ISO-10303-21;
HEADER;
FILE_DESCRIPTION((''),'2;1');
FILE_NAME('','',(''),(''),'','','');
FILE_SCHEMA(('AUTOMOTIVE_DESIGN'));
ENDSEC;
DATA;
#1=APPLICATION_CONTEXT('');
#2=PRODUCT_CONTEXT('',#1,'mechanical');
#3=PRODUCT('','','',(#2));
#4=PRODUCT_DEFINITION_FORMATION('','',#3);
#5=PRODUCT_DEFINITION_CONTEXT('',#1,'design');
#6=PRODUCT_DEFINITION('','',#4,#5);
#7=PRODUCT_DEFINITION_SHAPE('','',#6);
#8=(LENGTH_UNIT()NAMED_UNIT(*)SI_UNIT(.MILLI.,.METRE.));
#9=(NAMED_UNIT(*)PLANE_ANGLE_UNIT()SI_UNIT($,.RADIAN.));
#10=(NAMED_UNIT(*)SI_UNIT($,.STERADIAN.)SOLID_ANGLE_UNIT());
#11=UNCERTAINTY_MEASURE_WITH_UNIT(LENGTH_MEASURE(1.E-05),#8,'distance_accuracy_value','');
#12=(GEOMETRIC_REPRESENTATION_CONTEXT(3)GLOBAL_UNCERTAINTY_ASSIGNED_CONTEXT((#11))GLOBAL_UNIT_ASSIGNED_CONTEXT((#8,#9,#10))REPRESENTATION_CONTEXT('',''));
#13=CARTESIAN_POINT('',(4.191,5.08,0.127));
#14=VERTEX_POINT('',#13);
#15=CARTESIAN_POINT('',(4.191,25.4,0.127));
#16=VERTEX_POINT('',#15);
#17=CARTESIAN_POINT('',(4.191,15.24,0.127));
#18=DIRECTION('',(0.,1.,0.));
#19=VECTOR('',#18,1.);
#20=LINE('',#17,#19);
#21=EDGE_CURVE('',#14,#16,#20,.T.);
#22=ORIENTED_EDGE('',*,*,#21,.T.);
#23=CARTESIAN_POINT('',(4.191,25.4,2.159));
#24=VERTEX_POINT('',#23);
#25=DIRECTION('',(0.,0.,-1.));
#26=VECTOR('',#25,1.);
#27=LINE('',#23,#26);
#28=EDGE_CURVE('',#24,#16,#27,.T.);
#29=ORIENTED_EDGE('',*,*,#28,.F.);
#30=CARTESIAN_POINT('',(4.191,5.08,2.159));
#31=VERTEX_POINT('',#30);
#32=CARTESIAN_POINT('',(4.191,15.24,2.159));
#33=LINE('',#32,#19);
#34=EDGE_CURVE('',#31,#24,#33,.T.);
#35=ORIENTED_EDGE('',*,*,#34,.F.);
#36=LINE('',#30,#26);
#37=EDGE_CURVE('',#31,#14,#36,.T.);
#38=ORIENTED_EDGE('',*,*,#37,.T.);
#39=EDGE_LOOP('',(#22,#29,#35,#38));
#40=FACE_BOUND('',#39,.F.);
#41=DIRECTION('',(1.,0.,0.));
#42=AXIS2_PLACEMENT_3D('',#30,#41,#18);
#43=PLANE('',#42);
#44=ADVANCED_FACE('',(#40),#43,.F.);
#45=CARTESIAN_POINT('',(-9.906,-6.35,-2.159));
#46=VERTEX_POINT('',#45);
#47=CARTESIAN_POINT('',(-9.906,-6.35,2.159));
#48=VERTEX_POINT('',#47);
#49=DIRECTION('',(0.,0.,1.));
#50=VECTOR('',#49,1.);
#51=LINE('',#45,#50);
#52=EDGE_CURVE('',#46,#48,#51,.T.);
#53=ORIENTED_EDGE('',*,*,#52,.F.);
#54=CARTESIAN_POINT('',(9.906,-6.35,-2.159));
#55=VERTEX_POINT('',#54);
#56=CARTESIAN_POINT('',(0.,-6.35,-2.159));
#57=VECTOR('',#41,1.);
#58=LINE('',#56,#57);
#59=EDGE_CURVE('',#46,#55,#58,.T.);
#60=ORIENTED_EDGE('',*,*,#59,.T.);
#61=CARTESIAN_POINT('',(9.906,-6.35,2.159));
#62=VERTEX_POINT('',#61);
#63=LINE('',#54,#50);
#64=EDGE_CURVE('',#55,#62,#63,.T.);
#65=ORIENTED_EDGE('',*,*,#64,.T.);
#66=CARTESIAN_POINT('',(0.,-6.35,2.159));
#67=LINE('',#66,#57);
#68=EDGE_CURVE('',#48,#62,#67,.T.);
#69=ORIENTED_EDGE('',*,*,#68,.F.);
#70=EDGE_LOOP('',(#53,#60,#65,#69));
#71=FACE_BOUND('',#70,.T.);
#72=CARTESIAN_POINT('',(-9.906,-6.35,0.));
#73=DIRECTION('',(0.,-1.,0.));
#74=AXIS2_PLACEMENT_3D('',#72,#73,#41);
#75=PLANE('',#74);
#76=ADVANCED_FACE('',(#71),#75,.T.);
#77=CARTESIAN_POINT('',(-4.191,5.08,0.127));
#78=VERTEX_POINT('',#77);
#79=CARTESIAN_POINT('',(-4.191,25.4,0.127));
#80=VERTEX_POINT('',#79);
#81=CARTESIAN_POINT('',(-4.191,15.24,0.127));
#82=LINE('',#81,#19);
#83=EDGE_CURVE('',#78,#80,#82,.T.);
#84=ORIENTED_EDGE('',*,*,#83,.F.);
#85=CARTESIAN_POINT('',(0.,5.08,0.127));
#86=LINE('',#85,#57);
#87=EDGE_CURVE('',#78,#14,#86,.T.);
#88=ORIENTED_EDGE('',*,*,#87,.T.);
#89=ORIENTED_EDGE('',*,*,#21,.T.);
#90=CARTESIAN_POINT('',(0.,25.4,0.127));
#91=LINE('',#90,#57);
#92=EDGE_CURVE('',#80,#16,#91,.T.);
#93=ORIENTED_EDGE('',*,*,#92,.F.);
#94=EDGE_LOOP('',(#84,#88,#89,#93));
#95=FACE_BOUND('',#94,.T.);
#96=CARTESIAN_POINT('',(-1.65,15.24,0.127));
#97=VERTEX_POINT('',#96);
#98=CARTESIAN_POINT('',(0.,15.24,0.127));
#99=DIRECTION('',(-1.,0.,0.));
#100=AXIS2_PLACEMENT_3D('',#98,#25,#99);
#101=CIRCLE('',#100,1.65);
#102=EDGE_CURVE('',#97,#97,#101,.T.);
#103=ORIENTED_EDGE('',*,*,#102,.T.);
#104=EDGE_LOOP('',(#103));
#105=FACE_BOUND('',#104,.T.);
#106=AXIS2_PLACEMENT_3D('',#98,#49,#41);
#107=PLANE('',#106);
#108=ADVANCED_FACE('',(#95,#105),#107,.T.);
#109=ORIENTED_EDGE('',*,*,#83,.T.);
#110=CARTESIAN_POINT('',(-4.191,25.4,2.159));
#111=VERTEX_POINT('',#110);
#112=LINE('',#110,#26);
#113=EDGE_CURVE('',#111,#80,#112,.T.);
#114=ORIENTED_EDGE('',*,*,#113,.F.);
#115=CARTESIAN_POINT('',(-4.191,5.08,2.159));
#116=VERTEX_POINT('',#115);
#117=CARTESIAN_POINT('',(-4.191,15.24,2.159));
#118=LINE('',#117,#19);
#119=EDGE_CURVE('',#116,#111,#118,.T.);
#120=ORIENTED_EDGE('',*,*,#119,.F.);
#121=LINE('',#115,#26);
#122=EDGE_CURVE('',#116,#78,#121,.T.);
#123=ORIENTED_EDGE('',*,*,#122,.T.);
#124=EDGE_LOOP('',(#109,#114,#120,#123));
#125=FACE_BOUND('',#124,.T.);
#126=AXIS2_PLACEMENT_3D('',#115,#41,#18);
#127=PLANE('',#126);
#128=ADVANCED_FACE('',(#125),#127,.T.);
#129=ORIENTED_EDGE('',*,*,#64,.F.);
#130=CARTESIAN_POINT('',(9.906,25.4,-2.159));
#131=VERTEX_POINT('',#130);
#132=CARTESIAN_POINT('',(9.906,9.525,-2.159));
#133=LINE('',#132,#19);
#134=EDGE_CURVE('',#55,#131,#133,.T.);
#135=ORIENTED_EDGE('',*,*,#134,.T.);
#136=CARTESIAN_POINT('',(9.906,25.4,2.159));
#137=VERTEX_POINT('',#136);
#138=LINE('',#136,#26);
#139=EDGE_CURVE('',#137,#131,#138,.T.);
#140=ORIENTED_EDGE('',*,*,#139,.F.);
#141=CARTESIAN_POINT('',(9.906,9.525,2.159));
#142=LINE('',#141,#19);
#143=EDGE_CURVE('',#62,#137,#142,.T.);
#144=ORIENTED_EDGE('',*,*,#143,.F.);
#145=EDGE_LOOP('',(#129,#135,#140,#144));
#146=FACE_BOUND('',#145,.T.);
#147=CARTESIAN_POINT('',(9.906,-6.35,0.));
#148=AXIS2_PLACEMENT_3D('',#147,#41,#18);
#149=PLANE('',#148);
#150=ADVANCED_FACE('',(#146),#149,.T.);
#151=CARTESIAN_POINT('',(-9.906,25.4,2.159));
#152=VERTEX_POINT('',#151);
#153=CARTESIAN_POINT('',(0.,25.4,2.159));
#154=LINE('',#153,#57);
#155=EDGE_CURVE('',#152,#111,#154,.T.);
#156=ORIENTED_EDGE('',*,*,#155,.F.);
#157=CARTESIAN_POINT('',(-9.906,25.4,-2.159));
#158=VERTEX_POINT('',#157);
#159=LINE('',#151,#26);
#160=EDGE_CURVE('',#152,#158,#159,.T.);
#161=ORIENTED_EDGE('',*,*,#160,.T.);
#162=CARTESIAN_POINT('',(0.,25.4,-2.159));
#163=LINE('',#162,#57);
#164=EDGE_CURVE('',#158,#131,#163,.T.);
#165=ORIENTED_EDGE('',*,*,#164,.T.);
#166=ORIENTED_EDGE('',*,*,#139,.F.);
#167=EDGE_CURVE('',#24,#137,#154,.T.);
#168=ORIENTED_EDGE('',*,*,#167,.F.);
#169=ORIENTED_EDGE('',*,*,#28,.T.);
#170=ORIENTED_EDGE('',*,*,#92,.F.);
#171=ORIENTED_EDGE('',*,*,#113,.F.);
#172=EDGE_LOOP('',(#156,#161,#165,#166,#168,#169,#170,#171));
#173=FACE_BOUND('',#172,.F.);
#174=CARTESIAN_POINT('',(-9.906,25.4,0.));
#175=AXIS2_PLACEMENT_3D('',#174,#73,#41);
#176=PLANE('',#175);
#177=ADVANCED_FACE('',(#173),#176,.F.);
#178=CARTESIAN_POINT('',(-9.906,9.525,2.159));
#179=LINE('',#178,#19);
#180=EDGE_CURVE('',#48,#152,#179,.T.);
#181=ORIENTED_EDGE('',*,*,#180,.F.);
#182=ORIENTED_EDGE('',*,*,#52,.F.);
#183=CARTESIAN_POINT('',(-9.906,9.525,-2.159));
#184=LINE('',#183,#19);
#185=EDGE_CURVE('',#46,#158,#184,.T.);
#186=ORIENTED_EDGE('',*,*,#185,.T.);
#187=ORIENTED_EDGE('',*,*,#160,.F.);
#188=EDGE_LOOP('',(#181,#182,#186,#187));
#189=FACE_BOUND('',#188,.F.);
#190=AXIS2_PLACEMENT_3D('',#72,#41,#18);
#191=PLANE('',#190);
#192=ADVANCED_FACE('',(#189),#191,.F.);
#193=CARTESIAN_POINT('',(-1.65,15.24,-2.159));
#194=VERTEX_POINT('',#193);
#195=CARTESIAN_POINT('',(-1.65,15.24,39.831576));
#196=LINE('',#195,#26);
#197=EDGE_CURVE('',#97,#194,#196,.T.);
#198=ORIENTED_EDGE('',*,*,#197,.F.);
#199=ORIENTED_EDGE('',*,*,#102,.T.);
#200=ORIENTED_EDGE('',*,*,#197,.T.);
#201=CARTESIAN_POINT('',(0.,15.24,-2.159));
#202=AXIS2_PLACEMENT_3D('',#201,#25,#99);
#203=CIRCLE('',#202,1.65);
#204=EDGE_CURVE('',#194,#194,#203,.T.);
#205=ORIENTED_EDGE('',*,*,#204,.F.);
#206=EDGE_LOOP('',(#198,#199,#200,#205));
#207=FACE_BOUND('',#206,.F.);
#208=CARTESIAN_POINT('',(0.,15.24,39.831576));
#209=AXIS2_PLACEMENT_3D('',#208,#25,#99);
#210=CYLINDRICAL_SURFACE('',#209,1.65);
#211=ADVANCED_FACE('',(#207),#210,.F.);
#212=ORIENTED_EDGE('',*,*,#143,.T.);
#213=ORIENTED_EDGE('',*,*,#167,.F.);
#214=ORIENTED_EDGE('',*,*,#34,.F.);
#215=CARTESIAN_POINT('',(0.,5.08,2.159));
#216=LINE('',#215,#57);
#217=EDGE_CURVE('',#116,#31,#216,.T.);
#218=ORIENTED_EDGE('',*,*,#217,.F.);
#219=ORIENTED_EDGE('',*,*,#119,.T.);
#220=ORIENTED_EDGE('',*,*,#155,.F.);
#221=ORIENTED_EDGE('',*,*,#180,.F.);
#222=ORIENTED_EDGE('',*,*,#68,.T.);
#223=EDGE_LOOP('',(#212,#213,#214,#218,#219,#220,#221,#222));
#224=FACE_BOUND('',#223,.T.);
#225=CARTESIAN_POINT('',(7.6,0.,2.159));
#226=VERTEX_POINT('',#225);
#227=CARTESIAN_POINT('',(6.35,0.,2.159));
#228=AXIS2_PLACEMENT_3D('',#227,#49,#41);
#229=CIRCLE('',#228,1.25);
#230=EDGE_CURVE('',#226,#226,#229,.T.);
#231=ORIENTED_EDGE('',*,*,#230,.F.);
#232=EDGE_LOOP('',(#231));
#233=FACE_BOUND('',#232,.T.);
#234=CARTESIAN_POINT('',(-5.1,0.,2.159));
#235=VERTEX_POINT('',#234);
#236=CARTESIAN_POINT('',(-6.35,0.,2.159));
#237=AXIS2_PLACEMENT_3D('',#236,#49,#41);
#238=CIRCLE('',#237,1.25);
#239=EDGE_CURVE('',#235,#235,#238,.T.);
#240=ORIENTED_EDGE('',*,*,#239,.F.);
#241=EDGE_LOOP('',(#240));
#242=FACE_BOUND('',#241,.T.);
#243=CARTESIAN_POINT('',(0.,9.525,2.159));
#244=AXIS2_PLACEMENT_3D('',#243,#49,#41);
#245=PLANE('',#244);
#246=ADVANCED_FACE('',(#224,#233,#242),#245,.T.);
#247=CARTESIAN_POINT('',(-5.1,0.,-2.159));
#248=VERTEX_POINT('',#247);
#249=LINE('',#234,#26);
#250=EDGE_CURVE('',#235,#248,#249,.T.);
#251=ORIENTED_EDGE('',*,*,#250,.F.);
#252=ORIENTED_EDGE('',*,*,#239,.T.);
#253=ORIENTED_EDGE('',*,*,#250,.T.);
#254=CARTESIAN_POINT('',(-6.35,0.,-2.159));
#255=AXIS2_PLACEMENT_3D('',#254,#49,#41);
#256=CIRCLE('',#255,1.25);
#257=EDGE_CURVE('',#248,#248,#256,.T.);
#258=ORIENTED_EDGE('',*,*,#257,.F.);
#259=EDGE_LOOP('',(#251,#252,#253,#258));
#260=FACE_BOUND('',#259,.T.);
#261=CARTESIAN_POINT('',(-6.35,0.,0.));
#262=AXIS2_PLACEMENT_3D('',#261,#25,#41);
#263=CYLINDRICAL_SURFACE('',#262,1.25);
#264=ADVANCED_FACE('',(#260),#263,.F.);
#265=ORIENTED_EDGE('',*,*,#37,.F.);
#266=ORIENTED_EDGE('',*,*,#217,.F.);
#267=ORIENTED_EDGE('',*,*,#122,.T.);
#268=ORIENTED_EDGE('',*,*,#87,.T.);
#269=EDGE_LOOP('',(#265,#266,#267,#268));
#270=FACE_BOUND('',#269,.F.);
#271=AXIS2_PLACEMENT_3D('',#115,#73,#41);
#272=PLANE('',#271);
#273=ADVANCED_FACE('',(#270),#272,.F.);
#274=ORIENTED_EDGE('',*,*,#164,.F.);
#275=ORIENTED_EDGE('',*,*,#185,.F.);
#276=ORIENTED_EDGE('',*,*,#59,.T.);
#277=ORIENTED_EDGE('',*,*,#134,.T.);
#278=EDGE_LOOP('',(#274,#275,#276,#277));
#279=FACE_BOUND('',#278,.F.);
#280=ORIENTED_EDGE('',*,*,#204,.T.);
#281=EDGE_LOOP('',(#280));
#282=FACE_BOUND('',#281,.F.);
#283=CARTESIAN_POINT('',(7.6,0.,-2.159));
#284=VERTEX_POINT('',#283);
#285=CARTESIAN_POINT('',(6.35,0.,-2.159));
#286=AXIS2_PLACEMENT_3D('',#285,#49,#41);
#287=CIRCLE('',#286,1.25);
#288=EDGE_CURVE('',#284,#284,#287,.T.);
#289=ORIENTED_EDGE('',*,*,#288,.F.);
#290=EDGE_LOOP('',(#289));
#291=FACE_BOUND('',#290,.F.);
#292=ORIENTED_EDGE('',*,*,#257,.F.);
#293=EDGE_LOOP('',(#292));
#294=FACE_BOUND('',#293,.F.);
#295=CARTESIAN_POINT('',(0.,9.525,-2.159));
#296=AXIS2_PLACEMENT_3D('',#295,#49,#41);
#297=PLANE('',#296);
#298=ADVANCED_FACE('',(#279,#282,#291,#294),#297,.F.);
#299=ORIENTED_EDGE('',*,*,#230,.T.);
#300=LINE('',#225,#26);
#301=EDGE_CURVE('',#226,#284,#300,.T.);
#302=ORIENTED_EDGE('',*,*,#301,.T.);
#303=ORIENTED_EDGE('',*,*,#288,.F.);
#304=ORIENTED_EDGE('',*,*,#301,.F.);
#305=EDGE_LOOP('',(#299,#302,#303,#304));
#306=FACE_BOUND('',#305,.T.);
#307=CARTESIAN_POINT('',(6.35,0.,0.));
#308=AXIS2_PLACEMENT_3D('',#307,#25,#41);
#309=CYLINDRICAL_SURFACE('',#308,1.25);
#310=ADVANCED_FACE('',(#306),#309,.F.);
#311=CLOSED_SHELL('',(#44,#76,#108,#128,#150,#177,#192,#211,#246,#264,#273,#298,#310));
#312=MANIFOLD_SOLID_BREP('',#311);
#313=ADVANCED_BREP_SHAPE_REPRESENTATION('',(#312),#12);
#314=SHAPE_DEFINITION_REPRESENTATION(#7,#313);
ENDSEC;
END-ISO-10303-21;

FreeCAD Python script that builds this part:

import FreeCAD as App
import Part
import Sketcher

V = App.Vector
Q = App.Units.Quantity

doc = App.newDocument("Part")
params = doc.addObject("Spreadsheet::Sheet", "Params")
for row, (alias, value) in enumerate([
    ("sketch1_width", "0.78 in"),
    ("sketch1_height", "1.25 in"),
    ("pad1_length", "0.17 in"),
    ("hole_diameter", "3.3 mm"),
    ("sketch3_height", "0.8 in"),
    ("sketch3_width", "0.33 in"),
    ("pocket1_length", "0.08 in"),
], start=1):
    params.set(f"A{row}", alias)
    params.set(f"B{row}", "=" + value)
    params.setAlias(f"B{row}", alias)

body = doc.addObject("PartDesign::Body", "Body")

# Sketch on XY plane
sketch1 = body.newObject("Sketcher::SketchObject", "Sketch")
sketch1.AttachmentSupport = (doc.getObject("XY_Plane"), [""])
sketch1.MapMode = "FlatFace"
sketch1.addGeometry([
    Part.LineSegment(V(-9.9, 25.4, 0), V(-9.9, -6.3, 0)),  # 0
    Part.LineSegment(V(-9.9, -6.3, 0), V(9.9, -6.3, 0)),  # 1
    Part.LineSegment(V(9.9, -6.3, 0), V(9.9, 25.4, 0)),  # 2
    Part.LineSegment(V(9.9, 25.4, 0), V(-9.9, 25.4, 0)),  # 3
    Part.Circle(V(-6.3, 0, 0), V(0, 0, 1), 1.2),  # 4
    Part.Circle(V(6.3, 0, 0), V(0, 0, 1), 1.2),  # 5
], False)
sketch1.addConstraint([
    Sketcher.Constraint("Coincident", 0, 2, 1, 1),
    Sketcher.Constraint("Coincident", 1, 2, 2, 1),
    Sketcher.Constraint("Coincident", 2, 2, 3, 1),
    Sketcher.Constraint("Coincident", 3, 2, 0, 1),
    Sketcher.Constraint("Vertical", 0),
    Sketcher.Constraint("Horizontal", 1),
    Sketcher.Constraint("Vertical", 2),
    Sketcher.Constraint("Horizontal", 3),
    Sketcher.Constraint("Equal", 4, 5),
    Sketcher.Constraint("Symmetric", 4, 3, 5, 3, -1, 1),
    Sketcher.Constraint("PointOnObject", 4, 3, -1),
    Sketcher.Constraint("DistanceY", -1, 1, 2, 2, Q("1 in")),
    Sketcher.Constraint("DistanceX", 1, 1, 1, 2, Q("0.78 in")),
    Sketcher.Constraint("DistanceY", 0, 2, 0, 1, Q("1.25 in")),
    Sketcher.Constraint("DistanceX", 4, 3, 5, 3, Q("0.5 in")),
    Sketcher.Constraint("Diameter", 4, 2.5),
    Sketcher.Constraint("DistanceX", 0, 2, -1, 1, Q("0.39 in")),
])
sketch1.setExpression("Constraints[12]", "Params.sketch1_width")
sketch1.setExpression("Constraints[13]", "Params.sketch1_height")
pad1 = body.newObject("PartDesign::Pad", "Pad")
pad1.Profile = sketch1
pad1.setExpression("Length", "Params.pad1_length")
pad1.Midplane = True

# Sketch on XY plane
sketch2 = body.newObject("Sketcher::SketchObject", "Sketch001")
sketch2.AttachmentSupport = (doc.getObject("XY_Plane"), [""])
sketch2.MapMode = "FlatFace"
sketch2.AttachmentOffset = App.Placement(V(0, 0, 0.085 * 25.4), App.Rotation())
sketch2.addGeometry(Part.Circle(V(0, 15.2, 0), V(0, 0, 1), 1.6), False)
sketch2.addConstraint([
    Sketcher.Constraint("PointOnObject", 0, 3, -2),
    Sketcher.Constraint("DistanceY", -1, 1, 0, 3, Q("0.6 in")),
    Sketcher.Constraint("Diameter", 0, 3.3),
])
doc.recompute()
hole = body.newObject("PartDesign::Hole", "Hole")
hole.Profile = sketch2
hole.ThreadType = "None"
hole.setExpression("Diameter", "Params.hole_diameter")
hole.DepthType = "ThroughAll"

# Sketch on XY plane
sketch3 = body.newObject("Sketcher::SketchObject", "Sketch002")
sketch3.AttachmentSupport = (doc.getObject("XY_Plane"), [""])
sketch3.MapMode = "FlatFace"
sketch3.AttachmentOffset = App.Placement(V(0, 0, 0.085 * 25.4), App.Rotation())
sketch3.addGeometry([
    Part.LineSegment(V(-4, 25, 0), V(-4, 5, 0)),
    Part.LineSegment(V(-4, 5, 0), V(4, 5, 0)),
    Part.LineSegment(V(4, 5, 0), V(4, 25, 0)),
    Part.LineSegment(V(4, 25, 0), V(-4, 25, 0)),
], False)
sketch3.addConstraint([
    Sketcher.Constraint("Coincident", 0, 2, 1, 1),
    Sketcher.Constraint("Coincident", 1, 2, 2, 1),
    Sketcher.Constraint("Coincident", 2, 2, 3, 1),
    Sketcher.Constraint("Coincident", 3, 2, 0, 1),
    Sketcher.Constraint("Vertical", 0),
    Sketcher.Constraint("Horizontal", 1),
    Sketcher.Constraint("Vertical", 2),
    Sketcher.Constraint("Horizontal", 3),
    Sketcher.Constraint("DistanceY", 0, 2, 0, 1, Q("0.8 in")),
    Sketcher.Constraint("DistanceY", -1, 1, 2, 2, Q("1 in")),
    Sketcher.Constraint("DistanceX", 1, 1, 1, 2, Q("0.33 in")),
    Sketcher.Constraint("DistanceX", 0, 2, -1, 1, Q("0.165 in")),
])
sketch3.setExpression("Constraints[8]", "Params.sketch3_height")
sketch3.setExpression("Constraints[10]", "Params.sketch3_width")
pocket1 = body.newObject("PartDesign::Pocket", "Pocket")
pocket1.Profile = sketch3
pocket1.setExpression("Length", "Params.pocket1_length")

doc.recompute()
